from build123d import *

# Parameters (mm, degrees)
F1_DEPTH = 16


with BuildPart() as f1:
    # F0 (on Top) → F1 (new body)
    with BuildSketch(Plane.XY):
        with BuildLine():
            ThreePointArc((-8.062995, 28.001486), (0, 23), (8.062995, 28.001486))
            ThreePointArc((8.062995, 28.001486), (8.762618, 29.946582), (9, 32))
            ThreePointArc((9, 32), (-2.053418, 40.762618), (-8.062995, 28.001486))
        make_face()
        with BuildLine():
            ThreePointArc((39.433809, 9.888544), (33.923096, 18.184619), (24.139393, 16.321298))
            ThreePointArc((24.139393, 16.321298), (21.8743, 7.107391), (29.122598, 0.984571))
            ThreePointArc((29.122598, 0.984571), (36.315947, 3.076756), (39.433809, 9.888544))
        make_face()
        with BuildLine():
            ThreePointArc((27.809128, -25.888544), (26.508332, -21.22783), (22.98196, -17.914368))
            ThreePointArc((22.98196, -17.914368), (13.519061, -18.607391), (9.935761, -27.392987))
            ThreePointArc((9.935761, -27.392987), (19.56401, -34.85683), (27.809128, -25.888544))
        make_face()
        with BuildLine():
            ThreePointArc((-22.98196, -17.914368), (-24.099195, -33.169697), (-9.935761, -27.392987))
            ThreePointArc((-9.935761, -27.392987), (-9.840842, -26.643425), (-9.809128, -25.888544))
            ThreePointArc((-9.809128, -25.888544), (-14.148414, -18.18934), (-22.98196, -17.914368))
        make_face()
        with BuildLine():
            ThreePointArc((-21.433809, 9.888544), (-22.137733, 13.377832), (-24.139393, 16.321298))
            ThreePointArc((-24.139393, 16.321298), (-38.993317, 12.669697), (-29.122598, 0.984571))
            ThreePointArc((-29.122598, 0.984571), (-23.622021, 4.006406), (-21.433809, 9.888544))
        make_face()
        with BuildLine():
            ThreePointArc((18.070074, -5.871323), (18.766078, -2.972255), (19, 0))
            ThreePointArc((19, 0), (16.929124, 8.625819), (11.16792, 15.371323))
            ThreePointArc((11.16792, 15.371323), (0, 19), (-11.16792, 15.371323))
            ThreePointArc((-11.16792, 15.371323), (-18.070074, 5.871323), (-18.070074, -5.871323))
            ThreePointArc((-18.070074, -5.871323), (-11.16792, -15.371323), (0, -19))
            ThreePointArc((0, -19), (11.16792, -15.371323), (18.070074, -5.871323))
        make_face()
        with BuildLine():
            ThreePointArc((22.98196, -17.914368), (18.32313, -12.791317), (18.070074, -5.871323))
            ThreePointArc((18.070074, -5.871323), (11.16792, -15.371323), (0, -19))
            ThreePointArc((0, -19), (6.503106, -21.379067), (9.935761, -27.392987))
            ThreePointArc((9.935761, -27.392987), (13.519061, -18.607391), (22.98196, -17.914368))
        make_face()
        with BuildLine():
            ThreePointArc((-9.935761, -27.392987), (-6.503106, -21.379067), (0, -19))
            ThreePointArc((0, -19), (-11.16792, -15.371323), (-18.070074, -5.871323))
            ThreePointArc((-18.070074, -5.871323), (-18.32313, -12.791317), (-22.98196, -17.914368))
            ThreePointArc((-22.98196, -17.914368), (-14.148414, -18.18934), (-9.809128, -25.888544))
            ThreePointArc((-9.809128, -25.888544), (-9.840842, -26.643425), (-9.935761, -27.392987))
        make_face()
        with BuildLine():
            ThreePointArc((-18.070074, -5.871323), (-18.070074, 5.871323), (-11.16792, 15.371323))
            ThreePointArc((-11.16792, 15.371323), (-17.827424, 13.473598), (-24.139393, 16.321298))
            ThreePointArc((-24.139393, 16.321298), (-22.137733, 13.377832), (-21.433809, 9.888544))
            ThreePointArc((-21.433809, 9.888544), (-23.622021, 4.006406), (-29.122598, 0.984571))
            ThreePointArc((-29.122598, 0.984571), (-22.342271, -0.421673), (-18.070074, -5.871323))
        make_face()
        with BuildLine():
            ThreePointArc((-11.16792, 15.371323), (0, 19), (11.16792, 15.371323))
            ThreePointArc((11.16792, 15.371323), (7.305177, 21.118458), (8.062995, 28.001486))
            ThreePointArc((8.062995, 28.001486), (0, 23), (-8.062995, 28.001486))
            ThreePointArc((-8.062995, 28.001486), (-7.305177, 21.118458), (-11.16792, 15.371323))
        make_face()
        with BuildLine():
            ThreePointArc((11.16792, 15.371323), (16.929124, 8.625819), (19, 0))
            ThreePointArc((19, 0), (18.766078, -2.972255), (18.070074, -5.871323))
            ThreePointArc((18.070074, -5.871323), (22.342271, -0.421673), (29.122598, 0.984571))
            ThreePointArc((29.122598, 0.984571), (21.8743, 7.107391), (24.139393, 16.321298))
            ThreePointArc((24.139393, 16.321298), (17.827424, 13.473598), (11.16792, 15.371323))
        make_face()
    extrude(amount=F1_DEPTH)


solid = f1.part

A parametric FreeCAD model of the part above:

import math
import FreeCAD as App
import Part
import Sketcher

doc = App.newDocument("Part")
body = doc.addObject("PartDesign::Body", "Body")

# Sketch on XY plane
sketch1 = doc.addObject("Sketcher::SketchObject", "Sketch")
body.addObject(sketch1)
sketch1.AttachmentSupport = (doc.XY_Plane, [""])
sketch1.MapMode = "FlatFace"
sketch1.addGeometry([
    Part.ArcOfCircle(Part.Circle(App.Vector(-0.000003, 32, 0), App.Vector(0, 0, 1), 9.000003), math.radians(-26.377233), math.radians(-0.000003)),  # 0
    Part.ArcOfCircle(Part.Circle(App.Vector(0, 32, 0), App.Vector(0, 0, 1), 9), math.radians(0.000001), math.radians(206.377239)),  # 1
    Part.ArcOfCircle(Part.Circle(App.Vector(-17.091358, 23.524236, 0), App.Vector(0, 0, 1), 10.077555), math.radians(-53.999999), math.radians(26.377245)),  # 2
    Part.ArcOfCircle(Part.Circle(App.Vector(-17.091358, 23.524235, 0), App.Vector(0, 0, 1), 10.077554), math.radians(-134.377244), math.radians(-53.999994)),  # 3
    Part.ArcOfCircle(Part.Circle(App.Vector(-30.433809, 9.888543, 0), App.Vector(0, 0, 1), 9), math.radians(45.622756), math.radians(278.377242)),  # 4
    Part.ArcOfCircle(Part.Circle(App.Vector(-27.654396, -8.985456, 0), App.Vector(0, 0, 1), 10.077552), math.radians(17.999991), math.radians(98.377255)),  # 5
    Part.ArcOfCircle(Part.Circle(App.Vector(-27.654395, -8.98546, 0), App.Vector(0, 0, 1), 10.077552), math.radians(-62.377256), math.radians(18.000012)),  # 6
    Part.ArcOfCircle(Part.Circle(App.Vector(-18.809128, -25.888544, 0), App.Vector(0, 0, 1), 9), math.radians(117.622755), math.radians(350.377242)),  # 7
    Part.ArcOfCircle(Part.Circle(App.Vector(0.000001, -29.077557, 0), App.Vector(0, 0, 1), 10.077557), math.radians(90.000008), math.radians(170.377233)),  # 8
    Part.ArcOfCircle(Part.Circle(App.Vector(-0.000001, -29.077557, 0), App.Vector(0, 0, 1), 10.077557), math.radians(9.622767), math.radians(89.999992)),  # 9
    Part.ArcOfCircle(Part.Circle(App.Vector(18.809128, -25.888544, 0), App.Vector(0, 0, 1), 9), math.radians(-170.377246), math.radians(0.000002)),  # 10
    Part.ArcOfCircle(Part.Circle(App.Vector(18.809125, -25.888545, 0), App.Vector(0, 0, 1), 9.000003), math.radians(0.000007), math.radians(62.377231)),  # 11
    Part.ArcOfCircle(Part.Circle(App.Vector(27.654395, -8.98546, 0), App.Vector(0, 0, 1), 10.077552), math.radians(161.999988), math.radians(242.377256)),  # 12
    Part.ArcOfCircle(Part.Circle(App.Vector(27.654396, -8.985456, 0), App.Vector(0, 0, 1), 10.077552), math.radians(81.622745), math.radians(162.000009)),  # 13
    Part.ArcOfCircle(Part.Circle(App.Vector(30.433809, 9.888544, 0), App.Vector(0, 0, 1), 9), math.radians(-98.377241), math.radians(0)),  # 14
    Part.ArcOfCircle(Part.Circle(App.Vector(30.433809, 9.888543, 0), App.Vector(0, 0, 1), 9), math.radians(0.000008), math.radians(134.377241)),  # 15
    Part.ArcOfCircle(Part.Circle(App.Vector(17.091358, 23.524235, 0), App.Vector(0, 0, 1), 10.077554), math.radians(-126.000006), math.radians(-45.622756)),  # 16
    Part.ArcOfCircle(Part.Circle(App.Vector(17.091358, 23.524236, 0), App.Vector(0, 0, 1), 10.077555), math.radians(153.622755), math.radians(233.999999)),  # 17
], False)
sketch1.addConstraint([
    Sketcher.Constraint("Coincident", 0, 2, 1, 1),
    Sketcher.Constraint("Coincident", 1, 2, 2, 2),
    Sketcher.Constraint("Coincident", 2, 1, 3, 2),
    Sketcher.Constraint("Coincident", 3, 1, 4, 1),
    Sketcher.Constraint("Coincident", 4, 2, 5, 2),
    Sketcher.Constraint("Coincident", 5, 1, 6, 2),
    Sketcher.Constraint("Coincident", 6, 1, 7, 1),
    Sketcher.Constraint("Coincident", 7, 2, 8, 2),
    Sketcher.Constraint("Coincident", 8, 1, 9, 2),
    Sketcher.Constraint("Coincident", 9, 1, 10, 1),
    Sketcher.Constraint("Coincident", 10, 2, 11, 1),
    Sketcher.Constraint("Coincident", 11, 2, 12, 2),
    Sketcher.Constraint("Coincident", 12, 1, 13, 2),
    Sketcher.Constraint("Coincident", 13, 1, 14, 1),
    Sketcher.Constraint("Coincident", 14, 2, 15, 1),
    Sketcher.Constraint("Coincident", 15, 2, 16, 2),
    Sketcher.Constraint("Coincident", 16, 1, 17, 2),
    Sketcher.Constraint("Coincident", 17, 1, 0, 1),
    Sketcher.Constraint("Coincident", 1, 3, 0, 3),
    Sketcher.Constraint("Coincident", 3, 3, 2, 3),
    Sketcher.Constraint("Coincident", 6, 3, 5, 3),
    Sketcher.Constraint("Coincident", 9, 3, 8, 3),
    Sketcher.Constraint("Coincident", 11, 3, 10, 3),
    Sketcher.Constraint("Coincident", 13, 3, 12, 3),
    Sketcher.Constraint("Coincident", 15, 3, 14, 3),
    Sketcher.Constraint("Coincident", 17, 3, 16, 3),
    Sketcher.Constraint("PointOnObject", 1, 3, -2),
    Sketcher.Constraint("PointOnObject", 8, 3, -2),
    Sketcher.Constraint("PointOnObject", 8, 1, -2),
    Sketcher.Constraint("Radius", 1, 9.0),
    Sketcher.Constraint("Radius", 4, 9.0),
    Sketcher.Constraint("Radius", 7, 9.0),
    Sketcher.Constraint("Radius", 10, 9.0),
    Sketcher.Constraint("Radius", 14, 9.0),
    Sketcher.Constraint("DistanceY", -1, 1, 0, 3, 32.0),
    Sketcher.Constraint("DistanceY", -1, 1, 0, 2, 32.0),
    Sketcher.Constraint("DistanceY", 8, 1, -1, 1, 19.0),
    Sketcher.Constraint("Radius", 6, 10.077552),
    Sketcher.Constraint("Radius", 12, 10.077552),
    Sketcher.Constraint("Radius", 2, 10.077555),
    Sketcher.Constraint("Radius", 8, 10.077557),
    Sketcher.Constraint("Radius", 16, 10.077554),
    Sketcher.Constraint("DistanceY", 5, 3, 4, 3, 18.874),
    Sketcher.Constraint("DistanceY", 13, 3, 14, 3, 18.874),
    Sketcher.Constraint("DistanceY", 13, 3, 14, 2, 18.874),
    Sketcher.Constraint("DistanceX", 0, 3, 17, 1, 8.062998),
    Sketcher.Constraint("DistanceY", -1, 1, 3, 1, 16.321298),
    Sketcher.Constraint("DistanceX", 4, 2, -1, 1, 29.122598),
    Sketcher.Constraint("DistanceX", -1, 1, 13, 1, 29.122598),
    Sketcher.Constraint("DistanceY", -1, 1, 15, 2, 16.321298),
    Sketcher.Constraint("DistanceY", 8, 3, 5, 3, 20.0921),
    Sketcher.Constraint("DistanceY", 8, 3, 13, 3, 20.0921),
    Sketcher.Constraint("DistanceX", 4, 2, 5, 3, 1.468202),
    Sketcher.Constraint("DistanceX", 6, 1, 7, 2, 13.046199),
    Sketcher.Constraint("DistanceX", 13, 3, 13, 1, 1.468202),
    Sketcher.Constraint("DistanceX", 2, 1, -1, 1, 11.16792),
    Sketcher.Constraint("DistanceX", 6, 1, -1, 1, 22.98196),
    Sketcher.Constraint("DistanceX", -1, 1, 9, 1, 9.935761),
    Sketcher.Constraint("DistanceX", -1, 1, 11, 2, 22.98196),
    Sketcher.Constraint("DistanceX", -1, 1, 16, 1, 11.16792),
    Sketcher.Constraint("DistanceX", 1, 2, 0, 3, 8.062992),
    Sketcher.Constraint("DistanceX", 6, 3, 5, 1, 9.584321),
    Sketcher.Constraint("DistanceX", 12, 1, 12, 3, 9.584321),
    Sketcher.Constraint("DistanceY", 10, 2, -1, 1, 25.888544),
])
pad1 = doc.addObject("PartDesign::Pad", "Pad")
body.addObject(pad1)
pad1.Profile = sketch1
pad1.Length = 16

doc.recompute()
